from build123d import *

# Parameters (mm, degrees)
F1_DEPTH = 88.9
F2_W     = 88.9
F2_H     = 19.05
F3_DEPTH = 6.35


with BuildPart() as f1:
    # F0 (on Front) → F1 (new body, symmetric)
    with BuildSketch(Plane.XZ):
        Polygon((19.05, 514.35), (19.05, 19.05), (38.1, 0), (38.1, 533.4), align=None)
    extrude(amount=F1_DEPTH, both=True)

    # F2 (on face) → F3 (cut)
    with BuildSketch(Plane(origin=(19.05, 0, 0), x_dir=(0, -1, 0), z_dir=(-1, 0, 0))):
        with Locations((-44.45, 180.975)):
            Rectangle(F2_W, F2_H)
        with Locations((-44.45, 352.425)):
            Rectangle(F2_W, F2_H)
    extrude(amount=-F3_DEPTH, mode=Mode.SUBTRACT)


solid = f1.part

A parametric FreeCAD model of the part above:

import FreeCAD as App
import Part
import Sketcher

V = App.Vector
Q = App.Units.Quantity

doc = App.newDocument("Part")
body = doc.addObject("PartDesign::Body", "Body")

# Sketch on XZ plane
sketch1 = body.newObject("Sketcher::SketchObject", "Sketch")
sketch1.AttachmentSupport = (doc.getObject("XZ_Plane"), [""])
sketch1.MapMode = "FlatFace"
sketch1.addGeometry(Part.LineSegment(V(19, 514, 0), V(19, 19, 0)), False)
sketch1.addGeometry(Part.LineSegment(V(19, 19, 0), V(38, 0, 0)), False)
sketch1.addGeometry(Part.LineSegment(V(38, 0, 0), V(38, 533, 0)), False)
sketch1.addGeometry(Part.LineSegment(V(38, 533, 0), V(19, 514, 0)), False)
sketch1.addConstraint(Sketcher.Constraint("Coincident", 0, 2, 1, 1))
sketch1.addConstraint(Sketcher.Constraint("Coincident", 1, 2, 2, 1))
sketch1.addConstraint(Sketcher.Constraint("Coincident", 2, 2, 3, 1))
sketch1.addConstraint(Sketcher.Constraint("Coincident", 3, 2, 0, 1))
sketch1.addConstraint(Sketcher.Constraint("Vertical", 0))
sketch1.addConstraint(Sketcher.Constraint("Vertical", 2))
sketch1.addConstraint(Sketcher.Constraint("PointOnObject", 1, 2, -1))
sketch1.addConstraint(Sketcher.Constraint("Perpendicular", 1, 3))
sketch1.addConstraint(Sketcher.Constraint("Equal", 1, 3))
sketch1.addConstraint(Sketcher.Constraint("DistanceY", 2, 1, 2, 2, Q("21 in")))
sketch1.addConstraint(Sketcher.Constraint("DistanceY", 0, 2, 0, 1, Q("19.5 in")))
sketch1.addConstraint(Sketcher.Constraint("DistanceX", -1, 1, 1, 2, Q("1.5 in")))
pad1 = body.newObject("PartDesign::Pad", "Pad")
pad1.Profile = sketch1
pad1.Length = Q("7 in")
pad1.Midplane = True

# Sketch on YZ plane
sketch2 = body.newObject("Sketcher::SketchObject", "Sketch001")
sketch2.AttachmentSupport = (doc.getObject("YZ_Plane"), [""])
sketch2.MapMode = "FlatFace"
sketch2.AttachmentOffset = App.Placement(V(0, 0, 0.75 * 25.4), App.Rotation())
sketch2.addGeometry(Part.LineSegment(V(89, 190, 0), V(89, 171, 0)), False)
sketch2.addGeometry(Part.LineSegment(V(89, 171, 0), V(0, 171, 0)), False)
sketch2.addGeometry(Part.LineSegment(V(0, 171, 0), V(0, 190, 0)), False)
sketch2.addGeometry(Part.LineSegment(V(0, 190, 0), V(89, 190, 0)), False)
sketch2.addGeometry(Part.LineSegment(V(89, 362, 0), V(89, 343, 0)), False)
sketch2.addGeometry(Part.LineSegment(V(89, 343, 0), V(0, 343, 0)), False)
sketch2.addGeometry(Part.LineSegment(V(0, 343, 0), V(0, 362, 0)), False)
sketch2.addGeometry(Part.LineSegment(V(0, 362, 0), V(89, 362, 0)), False)
sketch2.addConstraint(Sketcher.Constraint("Coincident", 0, 2, 1, 1))
sketch2.addConstraint(Sketcher.Constraint("Coincident", 1, 2, 2, 1))
sketch2.addConstraint(Sketcher.Constraint("Coincident", 2, 2, 3, 1))
sketch2.addConstraint(Sketcher.Constraint("Coincident", 3, 2, 0, 1))
sketch2.addConstraint(Sketcher.Constraint("Coincident", 4, 2, 5, 1))
sketch2.addConstraint(Sketcher.Constraint("Coincident", 5, 2, 6, 1))
sketch2.addConstraint(Sketcher.Constraint("Coincident", 6, 2, 7, 1))
sketch2.addConstraint(Sketcher.Constraint("Coincident", 7, 2, 4, 1))
sketch2.addConstraint(Sketcher.Constraint("Vertical", 0))
sketch2.addConstraint(Sketcher.Constraint("Horizontal", 1))
sketch2.addConstraint(Sketcher.Constraint("Vertical", 2))
sketch2.addConstraint(Sketcher.Constraint("Horizontal", 3))
sketch2.addConstraint(Sketcher.Constraint("Vertical", 4))
sketch2.addConstraint(Sketcher.Constraint("Horizontal", 5))
sketch2.addConstraint(Sketcher.Constraint("Vertical", 6))
sketch2.addConstraint(Sketcher.Constraint("Horizontal", 7))
sketch2.addConstraint(Sketcher.Constraint("PointOnObject", 1, 2, -2))
sketch2.addConstraint(Sketcher.Constraint("PointOnObject", 5, 2, -2))
sketch2.addConstraint(Sketcher.Constraint("Vertical", 3, 2, 4, 2))
sketch2.addConstraint(Sketcher.Constraint("Equal", 2, 4))
sketch2.addConstraint(Sketcher.Constraint("DistanceX", 1, 2, 1, 1, Q("3.5 in")))
sketch2.addConstraint(Sketcher.Constraint("DistanceY", 3, 2, 4, 2, Q("6 in")))
sketch2.addConstraint(Sketcher.Constraint("DistanceY", 0, 2, 0, 1, Q("0.75 in")))
sketch2.addConstraint(Sketcher.Constraint("DistanceY", -1, 1, 2, 2, Q("7.5 in")))
pocket1 = body.newObject("PartDesign::Pocket", "Pocket")
pocket1.Profile = sketch2
pocket1.Length = Q("0.25 in")
pocket1.Reversed = True

doc.recompute()
